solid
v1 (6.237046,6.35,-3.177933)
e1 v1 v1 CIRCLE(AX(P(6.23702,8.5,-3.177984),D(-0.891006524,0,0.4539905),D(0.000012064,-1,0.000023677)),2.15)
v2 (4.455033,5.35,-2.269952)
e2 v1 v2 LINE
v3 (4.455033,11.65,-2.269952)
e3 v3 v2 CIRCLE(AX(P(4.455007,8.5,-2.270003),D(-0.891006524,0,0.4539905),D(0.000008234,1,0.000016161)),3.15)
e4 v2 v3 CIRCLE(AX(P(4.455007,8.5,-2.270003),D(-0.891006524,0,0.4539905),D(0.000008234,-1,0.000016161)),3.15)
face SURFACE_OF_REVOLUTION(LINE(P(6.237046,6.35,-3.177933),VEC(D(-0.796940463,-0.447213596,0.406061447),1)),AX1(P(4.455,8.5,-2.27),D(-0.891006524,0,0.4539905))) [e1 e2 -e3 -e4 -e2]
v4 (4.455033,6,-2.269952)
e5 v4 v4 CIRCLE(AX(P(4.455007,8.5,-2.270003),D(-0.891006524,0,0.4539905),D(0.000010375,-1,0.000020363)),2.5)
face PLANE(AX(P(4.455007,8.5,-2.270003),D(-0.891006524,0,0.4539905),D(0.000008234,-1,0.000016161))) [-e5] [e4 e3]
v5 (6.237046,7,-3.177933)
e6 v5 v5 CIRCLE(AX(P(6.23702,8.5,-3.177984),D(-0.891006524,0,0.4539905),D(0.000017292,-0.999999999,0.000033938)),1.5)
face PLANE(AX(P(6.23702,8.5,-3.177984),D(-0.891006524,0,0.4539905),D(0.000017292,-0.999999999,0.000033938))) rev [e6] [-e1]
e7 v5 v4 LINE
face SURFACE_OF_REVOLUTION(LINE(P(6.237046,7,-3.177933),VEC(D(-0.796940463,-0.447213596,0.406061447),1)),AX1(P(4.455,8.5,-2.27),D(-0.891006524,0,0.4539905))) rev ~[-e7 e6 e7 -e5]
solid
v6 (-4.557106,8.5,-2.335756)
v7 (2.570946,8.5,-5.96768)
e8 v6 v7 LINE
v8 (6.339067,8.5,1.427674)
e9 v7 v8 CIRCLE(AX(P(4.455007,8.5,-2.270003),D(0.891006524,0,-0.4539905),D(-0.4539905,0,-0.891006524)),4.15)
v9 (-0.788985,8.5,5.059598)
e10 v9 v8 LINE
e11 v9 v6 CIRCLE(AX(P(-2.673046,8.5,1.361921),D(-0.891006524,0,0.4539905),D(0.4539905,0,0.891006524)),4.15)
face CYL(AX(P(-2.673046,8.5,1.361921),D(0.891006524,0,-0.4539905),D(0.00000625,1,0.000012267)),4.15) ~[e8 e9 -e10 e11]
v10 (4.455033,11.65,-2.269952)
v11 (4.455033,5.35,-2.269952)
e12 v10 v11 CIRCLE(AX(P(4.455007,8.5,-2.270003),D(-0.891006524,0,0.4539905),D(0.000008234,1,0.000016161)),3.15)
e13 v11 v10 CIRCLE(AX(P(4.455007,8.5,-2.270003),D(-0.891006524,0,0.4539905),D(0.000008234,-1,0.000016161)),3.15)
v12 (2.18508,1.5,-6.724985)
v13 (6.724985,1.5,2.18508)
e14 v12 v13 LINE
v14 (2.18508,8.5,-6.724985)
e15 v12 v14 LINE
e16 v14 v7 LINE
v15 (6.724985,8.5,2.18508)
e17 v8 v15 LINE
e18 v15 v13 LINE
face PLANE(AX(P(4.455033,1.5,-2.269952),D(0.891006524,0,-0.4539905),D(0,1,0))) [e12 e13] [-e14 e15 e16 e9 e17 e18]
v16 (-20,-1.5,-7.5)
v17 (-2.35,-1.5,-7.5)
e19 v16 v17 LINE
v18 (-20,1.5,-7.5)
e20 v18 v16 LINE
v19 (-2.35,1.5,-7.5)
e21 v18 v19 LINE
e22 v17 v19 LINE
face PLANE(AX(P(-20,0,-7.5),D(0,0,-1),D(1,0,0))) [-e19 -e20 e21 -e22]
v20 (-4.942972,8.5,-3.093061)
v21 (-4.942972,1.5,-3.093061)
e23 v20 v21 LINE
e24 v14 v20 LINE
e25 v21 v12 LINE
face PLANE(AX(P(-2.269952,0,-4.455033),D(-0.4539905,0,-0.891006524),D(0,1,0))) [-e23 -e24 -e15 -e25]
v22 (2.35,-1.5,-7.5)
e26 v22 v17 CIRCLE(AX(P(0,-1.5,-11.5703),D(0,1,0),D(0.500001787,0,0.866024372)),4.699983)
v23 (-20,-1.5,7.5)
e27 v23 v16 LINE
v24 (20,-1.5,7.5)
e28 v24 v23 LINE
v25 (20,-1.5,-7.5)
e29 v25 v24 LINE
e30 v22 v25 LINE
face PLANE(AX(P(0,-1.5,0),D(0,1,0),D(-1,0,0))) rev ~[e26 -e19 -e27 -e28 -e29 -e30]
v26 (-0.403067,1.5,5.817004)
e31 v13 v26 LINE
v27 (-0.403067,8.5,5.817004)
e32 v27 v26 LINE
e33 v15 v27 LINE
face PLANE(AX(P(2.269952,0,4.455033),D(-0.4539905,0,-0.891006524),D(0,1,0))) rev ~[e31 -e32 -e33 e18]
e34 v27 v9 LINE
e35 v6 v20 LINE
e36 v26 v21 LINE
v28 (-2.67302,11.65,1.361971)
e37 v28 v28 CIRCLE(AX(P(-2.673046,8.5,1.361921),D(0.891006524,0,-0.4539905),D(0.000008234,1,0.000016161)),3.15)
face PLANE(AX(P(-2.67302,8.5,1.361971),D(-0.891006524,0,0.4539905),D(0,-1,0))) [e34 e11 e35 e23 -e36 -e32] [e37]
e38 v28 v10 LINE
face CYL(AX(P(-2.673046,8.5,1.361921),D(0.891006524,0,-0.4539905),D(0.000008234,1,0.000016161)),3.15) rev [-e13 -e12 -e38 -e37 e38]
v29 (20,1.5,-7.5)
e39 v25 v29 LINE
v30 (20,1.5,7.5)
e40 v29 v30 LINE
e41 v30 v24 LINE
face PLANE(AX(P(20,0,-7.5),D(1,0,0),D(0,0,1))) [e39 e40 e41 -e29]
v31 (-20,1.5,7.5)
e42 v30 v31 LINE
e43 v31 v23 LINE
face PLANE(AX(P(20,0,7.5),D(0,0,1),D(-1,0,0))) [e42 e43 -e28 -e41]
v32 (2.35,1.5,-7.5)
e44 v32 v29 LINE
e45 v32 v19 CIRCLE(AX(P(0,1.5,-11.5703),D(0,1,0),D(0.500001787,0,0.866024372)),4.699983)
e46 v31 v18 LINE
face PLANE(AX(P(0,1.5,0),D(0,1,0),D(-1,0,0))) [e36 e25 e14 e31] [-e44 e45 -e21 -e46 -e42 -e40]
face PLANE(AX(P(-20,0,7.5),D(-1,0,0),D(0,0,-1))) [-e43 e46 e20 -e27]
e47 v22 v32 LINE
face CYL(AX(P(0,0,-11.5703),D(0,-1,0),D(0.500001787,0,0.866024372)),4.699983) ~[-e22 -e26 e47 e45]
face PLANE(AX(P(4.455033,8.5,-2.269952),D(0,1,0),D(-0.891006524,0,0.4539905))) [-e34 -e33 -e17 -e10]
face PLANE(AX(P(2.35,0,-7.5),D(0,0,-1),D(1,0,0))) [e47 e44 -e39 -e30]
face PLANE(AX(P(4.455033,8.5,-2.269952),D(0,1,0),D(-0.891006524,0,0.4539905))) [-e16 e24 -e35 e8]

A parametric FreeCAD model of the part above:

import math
import FreeCAD as App
import Part
import Sketcher
Q = App.Units.Quantity


def add_polygon(sketch, points):
    """Adds a closed chain of lines whose ends are joined by coincident constraints."""
    first, n = sketch.GeometryCount, len(points)
    for a, b in zip(points, points[1:] + points[:1]):
        sketch.addGeometry(Part.LineSegment(App.Vector(*a, 0), App.Vector(*b, 0)), False)
    for i in range(n):
        sketch.addConstraint(Sketcher.Constraint("Coincident", first + i, 2, first + (i + 1) % n, 1))

doc = App.newDocument("Part")
body = doc.addObject("PartDesign::Body", "Body")
body.AllowCompound = True

# Sketch on XZ plane
sketch1 = body.newObject("Sketcher::SketchObject", "Sketch")
sketch1.AttachmentSupport = (doc.getObject("XZ_Plane"), [""])
sketch1.MapMode = "FlatFace"
sketch1.addGeometry(Part.LineSegment(App.Vector(20, 7.5, 0), App.Vector(20, -7.5, 0)), False)
sketch1.addGeometry(Part.LineSegment(App.Vector(20, -7.5, 0), App.Vector(2.4, -7.5, 0)), False)
sketch1.addGeometry(Part.ArcOfCircle(Part.Circle(App.Vector(0, -11.6, 0), App.Vector(0, 0, 1), 4.7), math.radians(120), math.radians(420)), False)
sketch1.addGeometry(Part.LineSegment(App.Vector(-2.4, -7.5, 0), App.Vector(-20, -7.5, 0)), False)
sketch1.addGeometry(Part.LineSegment(App.Vector(-20, -7.5, 0), App.Vector(-20, 7.5, 0)), False)
sketch1.addGeometry(Part.LineSegment(App.Vector(-20, 7.5, 0), App.Vector(20, 7.5, 0)), False)
sketch1.addConstraint(Sketcher.Constraint("Coincident", 0, 2, 1, 1))
sketch1.addConstraint(Sketcher.Constraint("Coincident", 1, 2, 2, 2))
sketch1.addConstraint(Sketcher.Constraint("Coincident", 2, 1, 3, 1))
sketch1.addConstraint(Sketcher.Constraint("Coincident", 3, 2, 4, 1))
sketch1.addConstraint(Sketcher.Constraint("Coincident", 4, 2, 5, 1))
sketch1.addConstraint(Sketcher.Constraint("Coincident", 5, 2, 0, 1))
sketch1.addConstraint(Sketcher.Constraint("Vertical", 0))
sketch1.addConstraint(Sketcher.Constraint("Horizontal", 1))
sketch1.addConstraint(Sketcher.Constraint("Horizontal", 3))
sketch1.addConstraint(Sketcher.Constraint("Vertical", 4))
sketch1.addConstraint(Sketcher.Constraint("Horizontal", 5))
sketch1.addConstraint(Sketcher.Constraint("Symmetric", 0, 2, 4, 2, -1, 1))
sketch1.addConstraint(Sketcher.Constraint("Symmetric", 1, 2, 2, 1, -2))
sketch1.addConstraint(Sketcher.Constraint("Radius", 2, Q("4.7 mm")))
sketch1.addConstraint(Sketcher.Constraint("DistanceX", 5, 1, 5, 2, Q("40 mm")))
sketch1.addConstraint(Sketcher.Constraint("DistanceY", 0, 2, 0, 1, Q("15 mm")))
sketch1.addConstraint(Sketcher.Constraint("DistanceX", 2, 1, 1, 2, Q("4.7 mm")))
pad1 = body.newObject("PartDesign::Pad", "Pad")
pad1.Profile = sketch1
pad1.Length = 3
pad1.Midplane = True

# Sketch on an angled plane
sketch2 = body.newObject("Sketcher::SketchObject", "Sketch001")
sketch2.Placement = App.Placement(App.Vector(0, 0, 0), App.Rotation(App.Vector(0, 1, 0), App.Vector(0.891006524, 0, -0.4539905), App.Vector(-0.4539905, 0, -0.891006524), "ZXY"))
add_polygon(sketch2, [(2, 5), (2, -3), (8, -3), (8, 5)])  # lines 0-3
sketch2.addConstraint(Sketcher.Constraint("Vertical", 0))
sketch2.addConstraint(Sketcher.Constraint("Horizontal", 1))
sketch2.addConstraint(Sketcher.Constraint("Vertical", 2))
sketch2.addConstraint(Sketcher.Constraint("Horizontal", 3))
sketch2.addConstraint(Sketcher.Constraint("DistanceX", 1, 1, 1, 2, Q("7 mm")))
sketch2.addConstraint(Sketcher.Constraint("DistanceY", 0, 2, 0, 1, Q("8 mm")))
sketch2.addConstraint(Sketcher.Constraint("DistanceY", 0, 2, -1, 1, Q("3 mm")))
sketch2.addConstraint(Sketcher.Constraint("DistanceX", -1, 1, 0, 2, Q("1.5 mm")))
pad2 = body.newObject("PartDesign::Pad", "Pad001")
pad2.Profile = sketch2
pad2.Length = 10
pad2.Midplane = True

# Sketch on an angled plane
sketch3 = body.newObject("Sketcher::SketchObject", "Sketch002")
sketch3.Placement = App.Placement(App.Vector(0, 0, 0), App.Rotation(App.Vector(0, 1, 0), App.Vector(0.891006524, 0, -0.4539905), App.Vector(-0.4539905, 0, -0.891006524), "ZXY"))
add_polygon(sketch3, [(8.5, 5), (8.5, -3), (11.7, -3), (11.7, 5)])  # lines 0-3
sketch3.addGeometry(Part.LineSegment(App.Vector(8.5, 5, 0), App.Vector(8.5, -3, 0)), True)  # axis
sketch3.addConstraint(Sketcher.Constraint("Vertical", 0))
sketch3.addConstraint(Sketcher.Constraint("Horizontal", 1))
sketch3.addConstraint(Sketcher.Constraint("Vertical", 2))
sketch3.addConstraint(Sketcher.Constraint("Horizontal", 3))
sketch3.addConstraint(Sketcher.Constraint("Vertical", 4))
sketch3.addConstraint(Sketcher.Constraint("Coincident", 4, 1, 3, 2))
sketch3.addConstraint(Sketcher.Constraint("Horizontal", 1, 2, 4, 2))
sketch3.addConstraint(Sketcher.Constraint("DistanceY", 0, 2, 0, 1, Q("8 mm")))
sketch3.addConstraint(Sketcher.Constraint("DistanceY", 0, 2, -1, 1, Q("3 mm")))
sketch3.addConstraint(Sketcher.Constraint("DistanceX", 1, 1, 1, 2, Q("3.15 mm")))
sketch3.addConstraint(Sketcher.Constraint("DistanceX", -1, 1, 0, 2, Q("8.5 mm")))
groove = body.newObject("PartDesign::Groove", "Groove")
groove.Profile = sketch3
groove.ReferenceAxis = (sketch3, ["Axis0"])
groove.Angle = 360

# Sketch on an angled plane
sketch4 = body.newObject("Sketcher::SketchObject", "Sketch003")
sketch4.Placement = App.Placement(App.Vector(0, 0, 0), App.Rotation(App.Vector(0, 1, 0), App.Vector(0.891006524, 0, -0.4539905), App.Vector(-0.4539905, 0, -0.891006524), "ZXY"))
add_polygon(sketch4, [(6.3, 7), (5.3, 5), (6, 5), (7, 7)])  # lines 0-3
add_polygon(sketch4, [(11.7, 5), (11.7, -3), (12.7, -3), (12.7, 5)])  # lines 4-7
sketch4.addGeometry(Part.LineSegment(App.Vector(8.5, 7, 0), App.Vector(8.5, -3, 0)), True)  # axis
sketch4.addConstraint(Sketcher.Constraint("Horizontal", 1))
sketch4.addConstraint(Sketcher.Constraint("Horizontal", 3))
sketch4.addConstraint(Sketcher.Constraint("Vertical", 4))
sketch4.addConstraint(Sketcher.Constraint("Horizontal", 5))
sketch4.addConstraint(Sketcher.Constraint("Vertical", 6))
sketch4.addConstraint(Sketcher.Constraint("Horizontal", 7))
sketch4.addConstraint(Sketcher.Constraint("Vertical", 8))
sketch4.addConstraint(Sketcher.Constraint("Parallel", 0, 2))
sketch4.addConstraint(Sketcher.Constraint("Horizontal", 1, 2, 6, 2))
sketch4.addConstraint(Sketcher.Constraint("Horizontal", 3, 2, 8, 1))
sketch4.addConstraint(Sketcher.Constraint("Horizontal", 5, 2, 8, 2))
sketch4.addConstraint(Sketcher.Constraint("DistanceX", 5, 1, 5, 2, Q("1 mm")))
sketch4.addConstraint(Sketcher.Constraint("DistanceY", 4, 2, 4, 1, Q("8 mm")))
sketch4.addConstraint(Sketcher.Constraint("DistanceX", -1, 1, 2, 2, Q("7 mm")))
sketch4.addConstraint(Sketcher.Constraint("DistanceY", -1, 1, 2, 2, Q("7 mm")))
sketch4.addConstraint(Sketcher.Constraint("DistanceX", 1, 2, 2, 2, Q("1 mm")))
sketch4.addConstraint(Sketcher.Constraint("DistanceX", 0, 2, 4, 2, Q("6.3 mm")))
sketch4.addConstraint(Sketcher.Constraint("DistanceY", 8, 2, 8, 1, Q("10 mm")))
sketch4.addConstraint(Sketcher.Constraint("DistanceX", 1, 1, 1, 2, Q("0.65 mm")))
sketch4.addConstraint(Sketcher.Constraint("DistanceX", -1, 1, 8, 1, Q("8.5 mm")))
revolution = body.newObject("PartDesign::Revolution", "Revolution")
revolution.Profile = sketch4
revolution.ReferenceAxis = (sketch4, ["Axis0"])
revolution.Angle = 360

doc.recompute()
